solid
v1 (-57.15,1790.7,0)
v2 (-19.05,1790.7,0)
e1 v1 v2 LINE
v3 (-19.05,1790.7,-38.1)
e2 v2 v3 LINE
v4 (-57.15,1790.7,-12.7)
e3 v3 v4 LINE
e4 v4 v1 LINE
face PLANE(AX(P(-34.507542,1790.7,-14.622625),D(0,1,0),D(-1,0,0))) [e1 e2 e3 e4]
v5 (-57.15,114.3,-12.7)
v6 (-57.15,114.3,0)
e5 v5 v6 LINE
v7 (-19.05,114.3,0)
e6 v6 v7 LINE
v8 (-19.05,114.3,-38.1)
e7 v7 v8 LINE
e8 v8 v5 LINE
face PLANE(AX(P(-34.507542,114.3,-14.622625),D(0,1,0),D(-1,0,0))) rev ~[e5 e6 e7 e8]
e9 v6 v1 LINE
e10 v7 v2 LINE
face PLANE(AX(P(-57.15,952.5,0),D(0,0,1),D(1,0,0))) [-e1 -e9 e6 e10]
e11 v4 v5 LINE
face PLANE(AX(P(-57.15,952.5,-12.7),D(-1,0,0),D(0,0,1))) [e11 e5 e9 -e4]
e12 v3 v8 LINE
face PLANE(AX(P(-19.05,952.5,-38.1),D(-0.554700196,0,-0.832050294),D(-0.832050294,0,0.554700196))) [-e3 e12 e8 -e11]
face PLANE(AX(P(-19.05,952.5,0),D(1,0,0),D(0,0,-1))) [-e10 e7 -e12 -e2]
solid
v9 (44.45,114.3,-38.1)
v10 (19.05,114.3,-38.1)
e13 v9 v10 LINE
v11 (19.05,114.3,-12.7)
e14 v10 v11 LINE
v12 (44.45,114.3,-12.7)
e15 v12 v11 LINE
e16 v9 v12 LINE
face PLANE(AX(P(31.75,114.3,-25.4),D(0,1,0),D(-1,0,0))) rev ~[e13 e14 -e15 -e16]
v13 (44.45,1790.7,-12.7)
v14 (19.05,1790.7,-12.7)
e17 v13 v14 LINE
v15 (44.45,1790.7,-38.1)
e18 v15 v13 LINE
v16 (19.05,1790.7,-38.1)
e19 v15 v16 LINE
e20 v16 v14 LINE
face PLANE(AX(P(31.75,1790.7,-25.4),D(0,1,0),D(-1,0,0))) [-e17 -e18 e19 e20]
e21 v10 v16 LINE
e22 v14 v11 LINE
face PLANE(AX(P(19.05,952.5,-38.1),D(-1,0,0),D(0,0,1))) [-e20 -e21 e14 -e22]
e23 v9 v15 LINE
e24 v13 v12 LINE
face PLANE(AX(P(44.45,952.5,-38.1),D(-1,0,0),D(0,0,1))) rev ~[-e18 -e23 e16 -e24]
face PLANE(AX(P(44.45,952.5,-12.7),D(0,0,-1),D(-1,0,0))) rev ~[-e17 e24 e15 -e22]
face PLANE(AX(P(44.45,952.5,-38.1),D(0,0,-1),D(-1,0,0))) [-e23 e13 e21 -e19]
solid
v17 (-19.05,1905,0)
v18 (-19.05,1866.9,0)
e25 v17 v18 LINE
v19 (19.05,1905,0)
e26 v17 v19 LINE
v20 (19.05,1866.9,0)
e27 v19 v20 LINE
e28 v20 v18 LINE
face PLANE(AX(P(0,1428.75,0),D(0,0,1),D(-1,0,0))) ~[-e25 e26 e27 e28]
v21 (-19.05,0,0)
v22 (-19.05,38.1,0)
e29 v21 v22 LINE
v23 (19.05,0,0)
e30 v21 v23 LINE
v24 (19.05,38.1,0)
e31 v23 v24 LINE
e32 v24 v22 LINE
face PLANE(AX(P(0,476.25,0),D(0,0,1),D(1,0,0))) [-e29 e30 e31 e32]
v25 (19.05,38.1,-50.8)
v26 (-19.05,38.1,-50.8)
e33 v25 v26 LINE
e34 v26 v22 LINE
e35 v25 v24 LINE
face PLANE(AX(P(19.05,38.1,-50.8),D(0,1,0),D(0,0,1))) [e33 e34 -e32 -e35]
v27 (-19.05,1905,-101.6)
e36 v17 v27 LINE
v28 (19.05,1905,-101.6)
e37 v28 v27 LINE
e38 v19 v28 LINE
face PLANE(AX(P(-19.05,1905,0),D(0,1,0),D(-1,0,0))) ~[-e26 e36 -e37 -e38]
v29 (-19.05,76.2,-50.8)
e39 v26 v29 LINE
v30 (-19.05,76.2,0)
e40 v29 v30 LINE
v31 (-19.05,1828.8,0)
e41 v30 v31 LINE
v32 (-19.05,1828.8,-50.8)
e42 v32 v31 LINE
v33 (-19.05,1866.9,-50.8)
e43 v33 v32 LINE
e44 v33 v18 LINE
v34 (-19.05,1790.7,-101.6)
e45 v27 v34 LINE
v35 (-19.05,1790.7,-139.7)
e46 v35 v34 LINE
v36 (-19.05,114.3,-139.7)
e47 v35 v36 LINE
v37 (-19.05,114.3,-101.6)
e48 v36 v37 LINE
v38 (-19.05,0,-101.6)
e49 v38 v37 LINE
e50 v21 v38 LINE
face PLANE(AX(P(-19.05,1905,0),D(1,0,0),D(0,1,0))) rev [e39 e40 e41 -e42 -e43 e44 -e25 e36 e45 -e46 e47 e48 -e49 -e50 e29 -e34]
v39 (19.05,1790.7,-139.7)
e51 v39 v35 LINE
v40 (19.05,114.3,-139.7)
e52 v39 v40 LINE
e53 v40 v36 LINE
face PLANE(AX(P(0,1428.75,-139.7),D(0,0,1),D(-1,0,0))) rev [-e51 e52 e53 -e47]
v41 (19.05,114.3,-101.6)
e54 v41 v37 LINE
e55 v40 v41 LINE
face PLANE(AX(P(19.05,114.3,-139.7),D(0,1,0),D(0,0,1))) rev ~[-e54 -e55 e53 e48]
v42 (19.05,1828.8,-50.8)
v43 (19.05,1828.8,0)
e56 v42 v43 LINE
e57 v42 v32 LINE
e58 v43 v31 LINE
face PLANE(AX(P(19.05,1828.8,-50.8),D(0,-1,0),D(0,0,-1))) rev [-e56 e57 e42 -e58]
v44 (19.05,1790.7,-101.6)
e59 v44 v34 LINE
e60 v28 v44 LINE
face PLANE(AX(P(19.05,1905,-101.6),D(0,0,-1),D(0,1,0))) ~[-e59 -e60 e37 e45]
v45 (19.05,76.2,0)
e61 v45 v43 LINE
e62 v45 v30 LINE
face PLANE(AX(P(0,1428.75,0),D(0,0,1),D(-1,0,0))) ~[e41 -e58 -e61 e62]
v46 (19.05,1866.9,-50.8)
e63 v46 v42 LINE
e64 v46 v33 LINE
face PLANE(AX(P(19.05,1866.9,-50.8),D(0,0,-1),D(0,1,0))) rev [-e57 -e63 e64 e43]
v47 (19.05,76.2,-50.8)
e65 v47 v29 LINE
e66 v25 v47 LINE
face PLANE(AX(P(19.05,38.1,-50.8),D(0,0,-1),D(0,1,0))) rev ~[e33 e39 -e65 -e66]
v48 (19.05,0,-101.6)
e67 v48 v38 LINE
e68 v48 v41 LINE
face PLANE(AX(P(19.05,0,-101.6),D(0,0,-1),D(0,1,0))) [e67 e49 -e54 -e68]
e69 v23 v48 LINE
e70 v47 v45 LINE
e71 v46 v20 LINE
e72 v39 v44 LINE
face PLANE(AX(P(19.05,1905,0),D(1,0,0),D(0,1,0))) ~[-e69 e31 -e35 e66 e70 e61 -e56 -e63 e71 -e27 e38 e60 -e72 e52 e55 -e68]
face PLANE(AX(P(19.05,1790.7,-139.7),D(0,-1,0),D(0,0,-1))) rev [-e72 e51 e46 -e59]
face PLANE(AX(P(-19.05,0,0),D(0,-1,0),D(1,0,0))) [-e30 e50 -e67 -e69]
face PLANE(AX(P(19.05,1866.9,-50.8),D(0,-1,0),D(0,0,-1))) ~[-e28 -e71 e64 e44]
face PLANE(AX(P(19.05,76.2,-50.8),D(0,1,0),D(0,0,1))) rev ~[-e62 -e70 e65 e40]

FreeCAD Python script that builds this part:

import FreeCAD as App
import Part
import Sketcher
Q = App.Units.Quantity

doc = App.newDocument("Part")
body = doc.addObject("PartDesign::Body", "Body")

sketch1 = body.newObject("Sketcher::SketchObject", "Sketch")
sketch1.AttachmentSupport = (doc.getObject("XY_Plane"), [""])
sketch1.MapMode = "FlatFace"
sketch1.addGeometry([
    Part.LineSegment(App.Vector(-19.05, 952.5, 0), App.Vector(-19.05, 0, 0)),
    Part.LineSegment(App.Vector(-19.05, 0, 0), App.Vector(19.05, 0, 0)),
    Part.LineSegment(App.Vector(19.05, 0, 0), App.Vector(19.05, 952.5, 0)),
    Part.LineSegment(App.Vector(19.05, 952.5, 0), App.Vector(-19.05, 952.5, 0)),
], False)
sketch1.addConstraint([
    Sketcher.Constraint("Coincident", 0, 2, 1, 1),
    Sketcher.Constraint("Coincident", 1, 2, 2, 1),
    Sketcher.Constraint("Coincident", 2, 2, 3, 1),
    Sketcher.Constraint("Coincident", 3, 2, 0, 1),
    Sketcher.Constraint("Vertical", 0),
    Sketcher.Constraint("Horizontal", 1),
    Sketcher.Constraint("Vertical", 2),
    Sketcher.Constraint("Horizontal", 3),
    Sketcher.Constraint("Symmetric", 0, 2, 1, 2, -1, 1),
    Sketcher.Constraint("DistanceX", 1, 1, 1, 2, Q("1.5 in")),
    Sketcher.Constraint("DistanceY", 0, 2, 0, 1, Q("37.5 in")),
])
pad1 = body.newObject("PartDesign::Pad", "Pad")
pad1.Profile = sketch1
pad1.Length = Q("5.5 in")
pad1.Reversed = True

sketch2 = body.newObject("Sketcher::SketchObject", "Sketch001")
sketch2.AttachmentSupport = (doc.getObject("YZ_Plane"), [""])
sketch2.MapMode = "FlatFace"
sketch2.AttachmentOffset = App.Placement(App.Vector(0, 0, 0.75 * 25.4), App.Rotation())
sketch2.addGeometry([
    Part.LineSegment(App.Vector(0, -101.6, 0), App.Vector(0, -139.7, 0)),
    Part.LineSegment(App.Vector(0, -139.7, 0), App.Vector(114.3, -139.7, 0)),
    Part.LineSegment(App.Vector(114.3, -139.7, 0), App.Vector(114.3, -101.6, 0)),
    Part.LineSegment(App.Vector(114.3, -101.6, 0), App.Vector(0, -101.6, 0)),
], False)
sketch2.addConstraint([
    Sketcher.Constraint("Coincident", 0, 2, 1, 1),
    Sketcher.Constraint("Coincident", 1, 2, 2, 1),
    Sketcher.Constraint("Coincident", 2, 2, 3, 1),
    Sketcher.Constraint("Coincident", 3, 2, 0, 1),
    Sketcher.Constraint("Vertical", 0),
    Sketcher.Constraint("Horizontal", 1),
    Sketcher.Constraint("Vertical", 2),
    Sketcher.Constraint("Horizontal", 3),
    Sketcher.Constraint("PointOnObject", 0, 2, -2),
    Sketcher.Constraint("DistanceX", 1, 1, 1, 2, Q("4.5 in")),
    Sketcher.Constraint("DistanceY", 0, 2, 0, 1, Q("1.5 in")),
    Sketcher.Constraint("DistanceY", 2, 2, -1, 1, Q("4 in")),
])
pocket1 = body.newObject("PartDesign::Pocket", "Pocket")
pocket1.Profile = sketch2
pocket1.Type = "ThroughAll"

sketch3 = body.newObject("Sketcher::SketchObject", "Sketch002")
sketch3.AttachmentSupport = (doc.getObject("YZ_Plane"), [""])
sketch3.MapMode = "FlatFace"
sketch3.AttachmentOffset = App.Placement(App.Vector(0, 0, 0.75 * 25.4), App.Rotation())
sketch3.addGeometry([
    Part.LineSegment(App.Vector(38.1, 0, 0), App.Vector(38.1, -50.8, 0)),
    Part.LineSegment(App.Vector(38.1, -50.8, 0), App.Vector(76.2, -50.8, 0)),
    Part.LineSegment(App.Vector(76.2, -50.8, 0), App.Vector(76.2, 0, 0)),
    Part.LineSegment(App.Vector(76.2, 0, 0), App.Vector(38.1, 0, 0)),
], False)
sketch3.addConstraint([
    Sketcher.Constraint("Coincident", 0, 2, 1, 1),
    Sketcher.Constraint("Coincident", 1, 2, 2, 1),
    Sketcher.Constraint("Coincident", 2, 2, 3, 1),
    Sketcher.Constraint("Coincident", 3, 2, 0, 1),
    Sketcher.Constraint("Vertical", 0),
    Sketcher.Constraint("Horizontal", 1),
    Sketcher.Constraint("Vertical", 2),
    Sketcher.Constraint("Horizontal", 3),
    Sketcher.Constraint("PointOnObject", 2, 2, -1),
    Sketcher.Constraint("DistanceY", 0, 2, 0, 1, Q("2 in")),
    Sketcher.Constraint("DistanceX", 1, 1, 1, 2, Q("1.5 in")),
    Sketcher.Constraint("DistanceX", -1, 1, 1, 2, Q("3 in")),
])
pocket2 = body.newObject("PartDesign::Pocket", "Pocket001")
pocket2.Profile = sketch3
pocket2.Type = "ThroughAll"
body2 = doc.addObject("PartDesign::Body", "Body001")
doc.recompute()

body2.BaseFeature = body
doc.recompute()

mirroring = doc.addObject("Part::Mirroring", "Mirroring")
mirroring.Source = body
mirroring.Base = App.Vector(0, 952.5, -69.85)
mirroring.Normal = App.Vector(0, 1, 0)
body3 = doc.addObject("PartDesign::Body", "Body002")
body3.BaseFeature = mirroring
boolean = body2.newObject("PartDesign::Boolean", "Boolean")
boolean.Type = "Fuse"
boolean.addObjects([body3])
doc.recompute()
body4 = doc.addObject("PartDesign::Body", "Body003")

sketch4 = body4.newObject("Sketcher::SketchObject", "Sketch003")
sketch4.AttachmentSupport = (doc.getObject("XZ_Plane003"), [""])
sketch4.MapMode = "FlatFace"
sketch4.AttachmentOffset = App.Placement(App.Vector(0, 0, -37.5 * 25.4), App.Rotation())
sketch4.addGeometry([
    Part.LineSegment(App.Vector(-57.15, -12.7, 0), App.Vector(-57.15, 0, 0)),
    Part.LineSegment(App.Vector(-57.15, 0, 0), App.Vector(-19.05, 0, 0)),
    Part.LineSegment(App.Vector(-19.05, 0, 0), App.Vector(-19.05, -38.1, 0)),
    Part.LineSegment(App.Vector(-19.05, -38.1, 0), App.Vector(-57.15, -12.7, 0)),
], False)
sketch4.addConstraint([
    Sketcher.Constraint("Coincident", 0, 2, 1, 1),
    Sketcher.Constraint("Coincident", 1, 2, 2, 1),
    Sketcher.Constraint("Coincident", 2, 2, 3, 1),
    Sketcher.Constraint("Coincident", 3, 2, 0, 1),
    Sketcher.Constraint("Vertical", 0),
    Sketcher.Constraint("Horizontal", 1),
    Sketcher.Constraint("Vertical", 2),
    Sketcher.Constraint("PointOnObject", 0, 2, -1),
    Sketcher.Constraint("Equal", 1, 2),
    Sketcher.Constraint("DistanceX", 1, 1, 1, 2, Q("1.5 in")),
    Sketcher.Constraint("DistanceY", 0, 1, 0, 2, Q("0.5 in")),
    Sketcher.Constraint("DistanceX", 0, 2, -1, 1, Q("2.25 in")),
])
pad2 = body4.newObject("PartDesign::Pad", "Pad001")
pad2.Profile = sketch4
pad2.Type = "TwoLengths"
pad2.Length = Q("33 in")
pad2.Length2 = Q("33 in")
pad2.Reversed = True
body5 = doc.addObject("PartDesign::Body", "Body004")

sketch5 = body5.newObject("Sketcher::SketchObject", "Sketch004")
sketch5.AttachmentSupport = (doc.getObject("XZ_Plane004"), [""])
sketch5.MapMode = "FlatFace"
sketch5.AttachmentOffset = App.Placement(App.Vector(0, 0, -37.5 * 25.4), App.Rotation())
sketch5.addGeometry([
    Part.LineSegment(App.Vector(44.45, -12.7, 0), App.Vector(44.45, -38.1, 0)),
    Part.LineSegment(App.Vector(44.45, -38.1, 0), App.Vector(19.05, -38.1, 0)),
    Part.LineSegment(App.Vector(19.05, -38.1, 0), App.Vector(19.05, -12.7, 0)),
    Part.LineSegment(App.Vector(19.05, -12.7, 0), App.Vector(44.45, -12.7, 0)),
], False)
sketch5.addConstraint([
    Sketcher.Constraint("Coincident", 0, 2, 1, 1),
    Sketcher.Constraint("Coincident", 1, 2, 2, 1),
    Sketcher.Constraint("Coincident", 2, 2, 3, 1),
    Sketcher.Constraint("Coincident", 3, 2, 0, 1),
    Sketcher.Constraint("Vertical", 0),
    Sketcher.Constraint("Horizontal", 1),
    Sketcher.Constraint("Vertical", 2),
    Sketcher.Constraint("Horizontal", 3),
    Sketcher.Constraint("Equal", 3, 0),
    Sketcher.Constraint("DistanceX", 1, 2, 1, 1, Q("1 in")),
    Sketcher.Constraint("DistanceY", 0, 2, -1, 1, Q("1.5 in")),
    Sketcher.Constraint("DistanceX", -1, 1, 0, 2, Q("1.75 in")),
])
pad3 = body5.newObject("PartDesign::Pad", "Pad002")
pad3.Profile = sketch5
pad3.Type = "TwoLengths"
pad3.Length = Q("33 in")
pad3.Length2 = Q("33 in")
pad3.Reversed = True
mirroring.Visibility = False

doc.recompute()
